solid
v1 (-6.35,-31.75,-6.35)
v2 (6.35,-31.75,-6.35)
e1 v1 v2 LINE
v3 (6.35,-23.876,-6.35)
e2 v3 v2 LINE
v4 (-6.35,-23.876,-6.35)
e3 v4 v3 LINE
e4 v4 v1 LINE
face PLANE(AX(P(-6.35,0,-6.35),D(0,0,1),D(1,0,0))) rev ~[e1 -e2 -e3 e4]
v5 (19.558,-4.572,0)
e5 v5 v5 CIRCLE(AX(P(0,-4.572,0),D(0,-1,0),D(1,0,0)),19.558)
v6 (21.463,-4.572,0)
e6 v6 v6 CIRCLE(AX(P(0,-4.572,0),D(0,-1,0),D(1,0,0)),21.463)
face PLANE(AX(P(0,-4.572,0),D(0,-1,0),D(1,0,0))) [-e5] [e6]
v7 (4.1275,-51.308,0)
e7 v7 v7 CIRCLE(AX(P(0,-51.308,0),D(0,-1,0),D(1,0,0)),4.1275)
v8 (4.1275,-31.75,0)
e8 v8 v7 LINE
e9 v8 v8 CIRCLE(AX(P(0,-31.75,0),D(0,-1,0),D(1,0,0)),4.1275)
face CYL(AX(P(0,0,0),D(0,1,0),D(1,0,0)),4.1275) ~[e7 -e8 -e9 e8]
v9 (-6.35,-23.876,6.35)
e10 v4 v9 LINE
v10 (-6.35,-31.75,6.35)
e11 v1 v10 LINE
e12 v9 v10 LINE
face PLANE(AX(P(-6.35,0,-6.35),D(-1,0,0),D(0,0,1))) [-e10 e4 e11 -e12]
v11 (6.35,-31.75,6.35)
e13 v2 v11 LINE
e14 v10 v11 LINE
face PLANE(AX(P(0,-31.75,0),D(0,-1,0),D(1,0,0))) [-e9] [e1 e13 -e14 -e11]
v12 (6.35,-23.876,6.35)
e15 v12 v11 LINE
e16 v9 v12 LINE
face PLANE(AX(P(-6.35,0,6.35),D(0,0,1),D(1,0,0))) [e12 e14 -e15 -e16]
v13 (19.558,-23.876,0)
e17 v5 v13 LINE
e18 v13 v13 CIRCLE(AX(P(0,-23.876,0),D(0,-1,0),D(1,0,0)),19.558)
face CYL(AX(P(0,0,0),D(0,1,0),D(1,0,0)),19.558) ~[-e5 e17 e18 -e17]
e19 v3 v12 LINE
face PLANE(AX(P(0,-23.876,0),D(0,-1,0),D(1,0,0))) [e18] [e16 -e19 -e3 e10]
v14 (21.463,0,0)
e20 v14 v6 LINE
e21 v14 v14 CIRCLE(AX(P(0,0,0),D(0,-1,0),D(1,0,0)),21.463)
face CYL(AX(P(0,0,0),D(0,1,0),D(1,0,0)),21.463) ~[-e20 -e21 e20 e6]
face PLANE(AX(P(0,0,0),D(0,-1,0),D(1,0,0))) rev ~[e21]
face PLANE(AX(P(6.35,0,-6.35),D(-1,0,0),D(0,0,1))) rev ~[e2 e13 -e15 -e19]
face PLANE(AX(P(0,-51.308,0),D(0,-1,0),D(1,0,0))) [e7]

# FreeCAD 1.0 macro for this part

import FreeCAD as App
import Part
import Sketcher
Q = App.Units.Quantity


def add_polygon(sketch, points):
    """Adds a closed chain of lines whose ends are joined by coincident constraints."""
    first, n = sketch.GeometryCount, len(points)
    for a, b in zip(points, points[1:] + points[:1]):
        sketch.addGeometry(Part.LineSegment(App.Vector(*a, 0), App.Vector(*b, 0)), False)
    for i in range(n):
        sketch.addConstraint(Sketcher.Constraint("Coincident", first + i, 2, first + (i + 1) % n, 1))

doc = App.newDocument("Part")
body = doc.addObject("PartDesign::Body", "Body")

# Sketch on XZ plane
sketch1 = body.newObject("Sketcher::SketchObject", "Sketch")
sketch1.AttachmentSupport = (doc.getObject("XZ_Plane"), [""])
sketch1.MapMode = "FlatFace"
sketch1.addGeometry(Part.Circle(App.Vector(0, 0, 0), App.Vector(0, 0, 1), 21), False)
sketch1.addGeometry(Part.Circle(App.Vector(0, 0, 0), App.Vector(0, 0, 1), 20), False)
sketch1.addConstraint(Sketcher.Constraint("Coincident", 0, 3, -1, 1))
sketch1.addConstraint(Sketcher.Constraint("Coincident", 1, 3, -1, 1))
sketch1.addConstraint(Sketcher.Constraint("Diameter", 0, Q("1.69 in")))
sketch1.addConstraint(Sketcher.Constraint("Diameter", 1, Q("1.54 in")))
pad1 = body.newObject("PartDesign::Pad", "Pad")
pad1.Profile = sketch1
pad1.Length = Q("0.18 in")

# Sketch on XZ plane
sketch2 = body.newObject("Sketcher::SketchObject", "Sketch001")
sketch2.AttachmentSupport = (doc.getObject("XZ_Plane"), [""])
sketch2.MapMode = "FlatFace"
sketch2.addGeometry(Part.Circle(App.Vector(0, 0, 0), App.Vector(0, 0, 1), 20), False)  # 0
add_polygon(sketch2, [(6, -6), (-6, -6), (-6, 6), (6, 6)])  # lines 1-4
sketch2.addConstraint(Sketcher.Constraint("Horizontal", 1))
sketch2.addConstraint(Sketcher.Constraint("Vertical", 2))
sketch2.addConstraint(Sketcher.Constraint("Horizontal", 3))
sketch2.addConstraint(Sketcher.Constraint("Vertical", 4))
sketch2.addConstraint(Sketcher.Constraint("Coincident", 0, 3, -1, 1))
sketch2.addConstraint(Sketcher.Constraint("Symmetric", 1, 2, 3, 2, -1, 1))
sketch2.addConstraint(Sketcher.Constraint("Equal", 3, 2))
sketch2.addConstraint(Sketcher.Constraint("Diameter", 0, Q("1.54 in")))
sketch2.addConstraint(Sketcher.Constraint("DistanceX", 1, 2, 1, 1, Q("0.5 in")))
pad2 = body.newObject("PartDesign::Pad", "Pad001")
pad2.Profile = sketch2
pad2.Length = Q("0.94 in")

# Sketch on XZ plane
sketch3 = body.newObject("Sketcher::SketchObject", "Sketch002")
sketch3.AttachmentSupport = (doc.getObject("XZ_Plane"), [""])
sketch3.MapMode = "FlatFace"
add_polygon(sketch3, [(-6.3, 6.3), (-6.3, -6.3), (6.3, -6.3), (6.3, 6.3)])  # lines 0-3
sketch3.addGeometry(Part.Circle(App.Vector(0, 0, 0), App.Vector(0, 0, 1), 4.1), False)  # 4
sketch3.addConstraint(Sketcher.Constraint("Vertical", 0))
sketch3.addConstraint(Sketcher.Constraint("Horizontal", 1))
sketch3.addConstraint(Sketcher.Constraint("Vertical", 2))
sketch3.addConstraint(Sketcher.Constraint("Horizontal", 3))
sketch3.addConstraint(Sketcher.Constraint("Coincident", 4, 3, -1, 1))
sketch3.addConstraint(Sketcher.Constraint("Symmetric", 0, 2, 2, 2, -1, 1))
sketch3.addConstraint(Sketcher.Constraint("Equal", 3, 0))
sketch3.addConstraint(Sketcher.Constraint("Diameter", 4, Q("0.325 in")))
sketch3.addConstraint(Sketcher.Constraint("DistanceX", 1, 1, 1, 2, Q("0.5 in")))
pad3 = body.newObject("PartDesign::Pad", "Pad002")
pad3.Profile = sketch3
pad3.Length = Q("1.25 in")

# Sketch on XZ plane
sketch4 = body.newObject("Sketcher::SketchObject", "Sketch003")
sketch4.AttachmentSupport = (doc.getObject("XZ_Plane"), [""])
sketch4.MapMode = "FlatFace"
sketch4.addGeometry(Part.Circle(App.Vector(0, 0, 0), App.Vector(0, 0, 1), 4.1), False)
sketch4.addConstraint(Sketcher.Constraint("Coincident", 0, 3, -1, 1))
sketch4.addConstraint(Sketcher.Constraint("Diameter", 0, Q("0.325 in")))
pad4 = body.newObject("PartDesign::Pad", "Pad003")
pad4.Profile = sketch4
pad4.Length = Q("2.02 in")

doc.recompute()
